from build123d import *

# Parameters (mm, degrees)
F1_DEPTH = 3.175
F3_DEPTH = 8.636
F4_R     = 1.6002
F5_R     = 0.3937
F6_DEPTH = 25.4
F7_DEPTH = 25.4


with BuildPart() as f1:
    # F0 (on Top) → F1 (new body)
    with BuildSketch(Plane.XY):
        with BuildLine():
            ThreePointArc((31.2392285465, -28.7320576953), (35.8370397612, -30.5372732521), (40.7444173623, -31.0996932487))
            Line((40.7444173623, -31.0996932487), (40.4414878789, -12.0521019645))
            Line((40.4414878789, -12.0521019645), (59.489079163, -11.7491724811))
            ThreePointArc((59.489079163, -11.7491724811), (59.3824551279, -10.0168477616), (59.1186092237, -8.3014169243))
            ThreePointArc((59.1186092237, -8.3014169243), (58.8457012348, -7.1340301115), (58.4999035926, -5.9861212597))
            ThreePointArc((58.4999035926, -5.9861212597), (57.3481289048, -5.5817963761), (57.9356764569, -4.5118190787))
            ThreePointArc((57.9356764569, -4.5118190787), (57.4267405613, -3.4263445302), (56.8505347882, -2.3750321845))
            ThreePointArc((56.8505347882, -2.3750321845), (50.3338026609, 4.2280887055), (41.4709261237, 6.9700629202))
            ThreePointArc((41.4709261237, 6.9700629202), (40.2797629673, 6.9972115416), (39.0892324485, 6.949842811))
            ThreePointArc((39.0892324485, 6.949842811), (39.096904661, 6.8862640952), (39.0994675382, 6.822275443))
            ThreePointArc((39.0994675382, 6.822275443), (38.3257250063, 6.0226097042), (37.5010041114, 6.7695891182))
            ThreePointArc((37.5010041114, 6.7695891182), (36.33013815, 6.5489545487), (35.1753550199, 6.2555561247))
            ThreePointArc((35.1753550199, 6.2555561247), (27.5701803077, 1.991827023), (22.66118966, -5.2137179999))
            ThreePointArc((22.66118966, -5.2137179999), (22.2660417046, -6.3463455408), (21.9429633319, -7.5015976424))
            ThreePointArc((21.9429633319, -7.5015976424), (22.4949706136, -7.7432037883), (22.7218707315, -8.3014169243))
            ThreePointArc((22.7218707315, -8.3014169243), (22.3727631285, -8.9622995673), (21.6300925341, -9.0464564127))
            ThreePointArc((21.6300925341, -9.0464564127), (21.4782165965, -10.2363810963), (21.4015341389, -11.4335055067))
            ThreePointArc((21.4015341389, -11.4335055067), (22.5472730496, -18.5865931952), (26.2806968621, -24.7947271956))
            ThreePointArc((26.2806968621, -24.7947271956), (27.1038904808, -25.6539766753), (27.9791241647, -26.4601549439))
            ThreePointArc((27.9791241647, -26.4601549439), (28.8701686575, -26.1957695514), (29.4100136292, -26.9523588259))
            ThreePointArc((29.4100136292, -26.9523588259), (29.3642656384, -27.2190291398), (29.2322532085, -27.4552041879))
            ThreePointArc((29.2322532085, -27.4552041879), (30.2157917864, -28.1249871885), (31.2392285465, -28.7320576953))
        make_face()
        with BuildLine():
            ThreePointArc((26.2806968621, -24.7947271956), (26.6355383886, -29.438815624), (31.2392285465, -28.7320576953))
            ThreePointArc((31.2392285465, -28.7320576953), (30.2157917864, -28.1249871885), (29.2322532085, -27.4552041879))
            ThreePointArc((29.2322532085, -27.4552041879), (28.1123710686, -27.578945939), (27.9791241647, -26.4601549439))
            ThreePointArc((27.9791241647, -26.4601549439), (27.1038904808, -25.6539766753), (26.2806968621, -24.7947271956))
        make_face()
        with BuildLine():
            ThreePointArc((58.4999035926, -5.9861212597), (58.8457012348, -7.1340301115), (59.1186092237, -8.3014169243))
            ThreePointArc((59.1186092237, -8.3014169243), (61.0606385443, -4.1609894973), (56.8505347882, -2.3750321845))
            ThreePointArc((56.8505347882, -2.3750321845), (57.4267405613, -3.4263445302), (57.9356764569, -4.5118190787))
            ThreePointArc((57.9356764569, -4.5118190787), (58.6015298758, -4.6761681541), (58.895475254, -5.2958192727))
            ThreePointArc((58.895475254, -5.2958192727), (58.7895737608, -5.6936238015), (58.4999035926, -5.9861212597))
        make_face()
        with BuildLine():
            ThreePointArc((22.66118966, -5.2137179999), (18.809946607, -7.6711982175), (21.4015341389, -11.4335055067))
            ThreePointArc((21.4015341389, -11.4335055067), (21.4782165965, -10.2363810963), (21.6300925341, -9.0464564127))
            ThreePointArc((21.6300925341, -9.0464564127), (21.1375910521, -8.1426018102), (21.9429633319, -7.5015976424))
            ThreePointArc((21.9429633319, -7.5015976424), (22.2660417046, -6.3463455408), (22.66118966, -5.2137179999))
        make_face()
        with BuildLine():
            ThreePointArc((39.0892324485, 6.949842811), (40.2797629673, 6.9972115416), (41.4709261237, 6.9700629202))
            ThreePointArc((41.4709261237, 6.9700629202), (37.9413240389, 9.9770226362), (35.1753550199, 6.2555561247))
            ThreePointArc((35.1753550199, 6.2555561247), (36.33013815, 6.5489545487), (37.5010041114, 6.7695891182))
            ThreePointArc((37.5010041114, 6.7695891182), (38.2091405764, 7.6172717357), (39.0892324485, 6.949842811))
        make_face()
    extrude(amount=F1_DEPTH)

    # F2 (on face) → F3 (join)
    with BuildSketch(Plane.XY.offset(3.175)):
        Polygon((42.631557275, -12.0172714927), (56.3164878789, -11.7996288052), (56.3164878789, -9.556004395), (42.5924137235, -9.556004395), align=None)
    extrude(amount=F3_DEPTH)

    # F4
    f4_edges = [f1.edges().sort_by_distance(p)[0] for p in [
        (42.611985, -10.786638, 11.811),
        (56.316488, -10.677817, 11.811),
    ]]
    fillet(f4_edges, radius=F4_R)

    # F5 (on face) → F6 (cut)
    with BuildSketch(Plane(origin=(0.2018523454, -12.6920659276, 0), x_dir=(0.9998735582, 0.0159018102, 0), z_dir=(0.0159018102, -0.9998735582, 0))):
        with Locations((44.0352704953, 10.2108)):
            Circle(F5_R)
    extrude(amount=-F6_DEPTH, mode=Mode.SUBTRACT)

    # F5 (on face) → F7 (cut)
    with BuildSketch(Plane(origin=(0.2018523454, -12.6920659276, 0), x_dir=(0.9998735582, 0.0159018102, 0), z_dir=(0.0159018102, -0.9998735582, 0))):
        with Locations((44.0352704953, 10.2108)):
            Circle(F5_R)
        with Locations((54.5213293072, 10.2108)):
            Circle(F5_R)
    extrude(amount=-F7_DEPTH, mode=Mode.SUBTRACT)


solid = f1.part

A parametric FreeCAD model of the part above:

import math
import FreeCAD as App
import Part
import Sketcher

V = App.Vector
Q = App.Units.Quantity


def edges_at(feature, points):
    """Names of the edges that pass closest to the given points."""
    edges = feature.Shape.Edges
    near = lambda p: min(range(len(edges)), key=lambda i: edges[i].distToShape(Part.Vertex(*p))[0])
    return sorted({f"Edge{near(p) + 1}" for p in points})

doc = App.newDocument("Part")
body = doc.addObject("PartDesign::Body", "Body")

# Sketch on XY plane
sketch1 = body.newObject("Sketcher::SketchObject", "Sketch")
sketch1.AttachmentSupport = (doc.getObject("XY_Plane"), [""])
sketch1.MapMode = "FlatFace"
sketch1.addGeometry([
    Part.ArcOfCircle(Part.Circle(V(40.44, -12.05, 0), V(0, 0, 1), 19.05), math.radians(-119), math.radians(-89)),  # 0
    Part.LineSegment(V(40.74, -31.1, 0), V(40.44, -12.05, 0)),  # 1
    Part.LineSegment(V(40.44, -12.05, 0), V(59.49, -11.75, 0)),  # 2
    Part.ArcOfCircle(Part.Circle(V(40.44, -12.05, 0), V(0, 0, 1), 19.05), math.radians(0.91), math.radians(11.35)),  # 3
    Part.ArcOfCircle(Part.Circle(V(58.1, -5.3, 0), V(0, 0, 1), 3.17), math.radians(-71), math.radians(113)),  # 4
    Part.ArcOfCircle(Part.Circle(V(40.44, -12.05, 0), V(0, 0, 1), 19.05), math.radians(31), math.radians(87)),  # 5
    Part.ArcOfCircle(Part.Circle(V(38.3, 6.82, 0), V(0, 0, 1), 3.17), math.radians(3), math.radians(190)),  # 6
    Part.ArcOfCircle(Part.Circle(V(40.44, -12.05, 0), V(0, 0, 1), 19.05), math.radians(106), math.radians(159)),  # 7
    Part.ArcOfCircle(Part.Circle(V(21.92, -8.3, 0), V(0, 0, 1), 3.17), math.radians(77), math.radians(261)),  # 8
    Part.ArcOfCircle(Part.Circle(V(40.44, -12.05, 0), V(0, 0, 1), 19.05), math.radians(178), math.radians(222)),  # 9
    Part.ArcOfCircle(Part.Circle(V(28.61, -26.95, 0), V(0, 0, 1), 3.17), math.radians(137), math.radians(326)),  # 10
    Part.ArcOfCircle(Part.Circle(V(38.3, 6.82, 0), V(0, 0, 1), 0.8), math.radians(0), math.radians(9.17)),  # 11
    Part.ArcOfCircle(Part.Circle(V(38.3, 6.82, 0), V(0, 0, 1), 0.8), math.radians(-176), math.radians(0)),  # 12
    Part.ArcOfCircle(Part.Circle(V(38.3, 6.82, 0), V(0, 0, 1), 0.8), math.radians(9), math.radians(184)),  # 13
    Part.ArcOfCircle(Part.Circle(V(21.92, -8.3, 0), V(0, 0, 1), 0.8), math.radians(0), math.radians(88)),  # 14
    Part.ArcOfCircle(Part.Circle(V(21.92, -8.3, 0), V(0, 0, 1), 0.8), math.radians(-111), math.radians(0)),  # 15
    Part.ArcOfCircle(Part.Circle(V(21.92, -8.3, 0), V(0, 0, 1), 0.8), math.radians(88), math.radians(249)),  # 16
    Part.ArcOfCircle(Part.Circle(V(58.1, -5.3, 0), V(0, 0, 1), 0.8), math.radians(102), math.radians(300)),  # 17
    Part.ArcOfCircle(Part.Circle(V(58.1, -5.3, 0), V(0, 0, 1), 0.8), math.radians(0), math.radians(102)),  # 18
    Part.ArcOfCircle(Part.Circle(V(58.1, -5.3, 0), V(0, 0, 1), 0.8), math.radians(-60), math.radians(0)),  # 19
    Part.ArcOfCircle(Part.Circle(V(28.61, -26.95, 0), V(0, 0, 1), 0.8), math.radians(0), math.radians(142)),  # 20
    Part.ArcOfCircle(Part.Circle(V(28.61, -26.95, 0), V(0, 0, 1), 0.8), math.radians(-39), math.radians(0)),  # 21
    Part.ArcOfCircle(Part.Circle(V(28.61, -26.95, 0), V(0, 0, 1), 0.8), math.radians(142), math.radians(321)),  # 22
], False)
sketch1.addConstraint([
    Sketcher.Constraint("Coincident", 0, 2, 1, 1),
    Sketcher.Constraint("Coincident", 1, 2, 2, 1),
    Sketcher.Constraint("Coincident", 2, 2, 3, 1),
    Sketcher.Constraint("Coincident", 3, 2, 4, 1),
    Sketcher.Constraint("Coincident", 4, 2, 5, 1),
    Sketcher.Constraint("Coincident", 5, 2, 6, 1),
    Sketcher.Constraint("Coincident", 6, 2, 7, 1),
    Sketcher.Constraint("Coincident", 7, 2, 8, 1),
    Sketcher.Constraint("Coincident", 8, 2, 9, 1),
    Sketcher.Constraint("Coincident", 9, 2, 10, 1),
    Sketcher.Constraint("Coincident", 10, 2, 0, 1),
    Sketcher.Constraint("Tangent", 11, 1, 12, 2),
    Sketcher.Constraint("Tangent", 12, 1, 13, 2),
    Sketcher.Constraint("Tangent", 13, 1, 11, 2),
    Sketcher.Constraint("Tangent", 14, 1, 15, 2),
    Sketcher.Constraint("Tangent", 15, 1, 16, 2),
    Sketcher.Constraint("Tangent", 16, 1, 14, 2),
    Sketcher.Constraint("Tangent", 17, 1, 18, 2),
    Sketcher.Constraint("Tangent", 18, 1, 19, 2),
    Sketcher.Constraint("Tangent", 19, 1, 17, 2),
    Sketcher.Constraint("Tangent", 20, 1, 21, 2),
    Sketcher.Constraint("Tangent", 21, 1, 22, 2),
    Sketcher.Constraint("Tangent", 22, 1, 20, 2),
    Sketcher.Constraint("Coincident", 3, 3, 0, 3),
    Sketcher.Constraint("Coincident", 5, 3, 0, 3),
    Sketcher.Constraint("Coincident", 7, 3, 0, 3),
    Sketcher.Constraint("Coincident", 9, 3, 0, 3),
    Sketcher.Constraint("Coincident", 11, 3, 6, 3),
    Sketcher.Constraint("Coincident", 14, 3, 8, 3),
    Sketcher.Constraint("Coincident", 17, 3, 4, 3),
    Sketcher.Constraint("Coincident", 20, 3, 10, 3),
    Sketcher.Constraint("Coincident", 1, 2, 0, 3),
    Sketcher.Constraint("Equal", 0, 3),
    Sketcher.Constraint("Equal", 3, 5),
    Sketcher.Constraint("Equal", 4, 6),
    Sketcher.Constraint("Equal", 5, 7),
    Sketcher.Constraint("Equal", 6, 8),
    Sketcher.Constraint("Equal", 7, 9),
    Sketcher.Constraint("Equal", 8, 10),
    Sketcher.Constraint("Equal", 13, 14),
    Sketcher.Constraint("Equal", 16, 17),
    Sketcher.Constraint("Equal", 19, 20),
    Sketcher.Constraint("Perpendicular", 1, 2),
    Sketcher.Constraint("Horizontal", 16, 3, 3, 2),
    Sketcher.Constraint("Horizontal", 13, 3, 11, 1),
    Sketcher.Constraint("Horizontal", 3, 2, 14, 1),
    Sketcher.Constraint("Horizontal", 19, 3, 18, 1),
    Sketcher.Constraint("Horizontal", 22, 3, 20, 1),
    Sketcher.Constraint("Radius", 0, Q("0.75 in")),
    Sketcher.Constraint("Radius", 4, Q("0.125 in")),
    Sketcher.Constraint("Radius", 11, Q("0.0315 in")),
    Sketcher.Constraint("DistanceY", 0, 3, -1, 1, 12.052102),
    Sketcher.Constraint("DistanceY", 14, 3, 7, 2, 3.087699),
    Sketcher.Constraint("DistanceY", 10, 2, 21, 3, 1.779699),
    Sketcher.Constraint("DistanceX", 17, 1, 4, 3, 0.159699),
    Sketcher.Constraint("DistanceY", 19, 1, 18, 1, 0.690302),
    Sketcher.Constraint("DistanceY", 4, 3, -1, 1, 5.295819),
    Sketcher.Constraint("DistanceX", -1, 1, 8, 3, 21.921771),
    Sketcher.Constraint("DistanceY", 10, 3, -1, 1, 26.952359),
    Sketcher.Constraint("DistanceX", -1, 1, 2, 2, 59.489079),
    Sketcher.Constraint("DistanceX", -1, 1, 3, 2, 59.118609),
    Sketcher.Constraint("DistanceY", -1, 1, 12, 1, 6.769589),
    Sketcher.Constraint("DistanceX", 6, 3, 0, 3, 2.14212),
    Sketcher.Constraint("DistanceY", 6, 2, 11, 3, 0.566719),
    Sketcher.Constraint("DistanceX", 15, 1, 8, 3, 0.291678),
    Sketcher.Constraint("DistanceY", 14, 3, 16, 1, 0.799819),
    Sketcher.Constraint("DistanceX", 21, 1, 20, 1, 0.17776),
    Sketcher.Constraint("DistanceX", 22, 1, 10, 3, 0.630789),
    Sketcher.Constraint("DistanceX", -1, 1, 13, 1, 39.089232),
])
pad1 = body.newObject("PartDesign::Pad", "Pad")
pad1.Profile = sketch1
pad1.Length = Q("0.125 in")

# Sketch on XY plane
sketch2 = body.newObject("Sketcher::SketchObject", "Sketch001")
sketch2.AttachmentSupport = (doc.getObject("XY_Plane"), [""])
sketch2.MapMode = "FlatFace"
sketch2.AttachmentOffset = App.Placement(V(0, 0, 0.125 * 25.4), App.Rotation())
sketch2.addGeometry([
    Part.LineSegment(V(42.6, -12, 0), V(56.3, -11.8, 0)),
    Part.LineSegment(V(56.3, -11.8, 0), V(56.3, -9.6, 0)),
    Part.LineSegment(V(56.3, -9.6, 0), V(42.6, -9.6, 0)),
    Part.LineSegment(V(42.6, -9.6, 0), V(42.6, -12, 0)),
], False)
sketch2.addConstraint([
    Sketcher.Constraint("Coincident", 0, 2, 1, 1),
    Sketcher.Constraint("Coincident", 1, 2, 2, 1),
    Sketcher.Constraint("Coincident", 2, 2, 3, 1),
    Sketcher.Constraint("Coincident", 3, 2, 0, 1),
    Sketcher.Constraint("Vertical", 1),
    Sketcher.Constraint("Horizontal", 2),
    Sketcher.Constraint("Perpendicular", 0, 3),
    Sketcher.Constraint("Distance", 0, 13.686661),
    Sketcher.Constraint("Distance", 3, 2.461578),
    Sketcher.Constraint("DistanceX", 2, 2, 2, 1, 13.724074),
    Sketcher.Constraint("DistanceY", 0, 2, -1, 1, 11.799629),
    Sketcher.Constraint("DistanceX", -1, 1, 0, 2, 56.316488),
])
pad2 = body.newObject("PartDesign::Pad", "Pad001")
pad2.Profile = sketch2
pad2.Length = Q("0.34 in")
doc.recompute()

fillet = body.newObject("PartDesign::Fillet", "Fillet")
fillet.Base = (pad2, edges_at(pad2, [(42.612, -10.787, 11.811), (56.316, -10.678, 11.811)]))
fillet.Radius = Q("0.063 in")

# Sketch on an angled plane
sketch3 = body.newObject("Sketcher::SketchObject", "Sketch002")
sketch3.Placement = App.Placement(V(0.201852, -12.692066, 0), App.Rotation(V(0.999873558, 0.01590181, 0), V(0, 0, 1), V(0.01590181, -0.999873558, 0), "ZXY"))
sketch3.addGeometry(Part.Circle(V(44.04, 10.21, 0), V(0, 0, 1), 0.39), False)
sketch3.addConstraint([
    Sketcher.Constraint("Diameter", 0, Q("0.031 in")),
    Sketcher.Constraint("DistanceY", -1, 1, 0, 3, Q("0.402 in")),
    Sketcher.Constraint("DistanceX", -1, 1, 0, 3, 44.03527),
])
pocket1 = body.newObject("PartDesign::Pocket", "Pocket")
pocket1.Profile = sketch3
pocket1.Length = Q("1 in")

# Sketch on an angled plane
sketch4 = body.newObject("Sketcher::SketchObject", "Sketch003")
sketch4.Placement = App.Placement(V(0.201852, -12.692066, 0), App.Rotation(V(0.999873558, 0.01590181, 0), V(0, 0, 1), V(0.01590181, -0.999873558, 0), "ZXY"))
sketch4.addGeometry([
    Part.Circle(V(44.04, 10.21, 0), V(0, 0, 1), 0.39),
    Part.Circle(V(54.52, 10.21, 0), V(0, 0, 1), 0.39),
], False)
sketch4.addConstraint([
    Sketcher.Constraint("Equal", 0, 1),
    Sketcher.Constraint("Horizontal", 0, 3, 1, 3),
    Sketcher.Constraint("Diameter", 0, Q("0.031 in")),
    Sketcher.Constraint("DistanceY", -1, 1, 0, 3, Q("0.402 in")),
    Sketcher.Constraint("DistanceX", -1, 1, 0, 3, 44.03527),
    Sketcher.Constraint("DistanceX", -1, 1, 1, 3, 54.521329),
])
pocket2 = body.newObject("PartDesign::Pocket", "Pocket001")
pocket2.Profile = sketch4
pocket2.Length = Q("1 in")

doc.recompute()
